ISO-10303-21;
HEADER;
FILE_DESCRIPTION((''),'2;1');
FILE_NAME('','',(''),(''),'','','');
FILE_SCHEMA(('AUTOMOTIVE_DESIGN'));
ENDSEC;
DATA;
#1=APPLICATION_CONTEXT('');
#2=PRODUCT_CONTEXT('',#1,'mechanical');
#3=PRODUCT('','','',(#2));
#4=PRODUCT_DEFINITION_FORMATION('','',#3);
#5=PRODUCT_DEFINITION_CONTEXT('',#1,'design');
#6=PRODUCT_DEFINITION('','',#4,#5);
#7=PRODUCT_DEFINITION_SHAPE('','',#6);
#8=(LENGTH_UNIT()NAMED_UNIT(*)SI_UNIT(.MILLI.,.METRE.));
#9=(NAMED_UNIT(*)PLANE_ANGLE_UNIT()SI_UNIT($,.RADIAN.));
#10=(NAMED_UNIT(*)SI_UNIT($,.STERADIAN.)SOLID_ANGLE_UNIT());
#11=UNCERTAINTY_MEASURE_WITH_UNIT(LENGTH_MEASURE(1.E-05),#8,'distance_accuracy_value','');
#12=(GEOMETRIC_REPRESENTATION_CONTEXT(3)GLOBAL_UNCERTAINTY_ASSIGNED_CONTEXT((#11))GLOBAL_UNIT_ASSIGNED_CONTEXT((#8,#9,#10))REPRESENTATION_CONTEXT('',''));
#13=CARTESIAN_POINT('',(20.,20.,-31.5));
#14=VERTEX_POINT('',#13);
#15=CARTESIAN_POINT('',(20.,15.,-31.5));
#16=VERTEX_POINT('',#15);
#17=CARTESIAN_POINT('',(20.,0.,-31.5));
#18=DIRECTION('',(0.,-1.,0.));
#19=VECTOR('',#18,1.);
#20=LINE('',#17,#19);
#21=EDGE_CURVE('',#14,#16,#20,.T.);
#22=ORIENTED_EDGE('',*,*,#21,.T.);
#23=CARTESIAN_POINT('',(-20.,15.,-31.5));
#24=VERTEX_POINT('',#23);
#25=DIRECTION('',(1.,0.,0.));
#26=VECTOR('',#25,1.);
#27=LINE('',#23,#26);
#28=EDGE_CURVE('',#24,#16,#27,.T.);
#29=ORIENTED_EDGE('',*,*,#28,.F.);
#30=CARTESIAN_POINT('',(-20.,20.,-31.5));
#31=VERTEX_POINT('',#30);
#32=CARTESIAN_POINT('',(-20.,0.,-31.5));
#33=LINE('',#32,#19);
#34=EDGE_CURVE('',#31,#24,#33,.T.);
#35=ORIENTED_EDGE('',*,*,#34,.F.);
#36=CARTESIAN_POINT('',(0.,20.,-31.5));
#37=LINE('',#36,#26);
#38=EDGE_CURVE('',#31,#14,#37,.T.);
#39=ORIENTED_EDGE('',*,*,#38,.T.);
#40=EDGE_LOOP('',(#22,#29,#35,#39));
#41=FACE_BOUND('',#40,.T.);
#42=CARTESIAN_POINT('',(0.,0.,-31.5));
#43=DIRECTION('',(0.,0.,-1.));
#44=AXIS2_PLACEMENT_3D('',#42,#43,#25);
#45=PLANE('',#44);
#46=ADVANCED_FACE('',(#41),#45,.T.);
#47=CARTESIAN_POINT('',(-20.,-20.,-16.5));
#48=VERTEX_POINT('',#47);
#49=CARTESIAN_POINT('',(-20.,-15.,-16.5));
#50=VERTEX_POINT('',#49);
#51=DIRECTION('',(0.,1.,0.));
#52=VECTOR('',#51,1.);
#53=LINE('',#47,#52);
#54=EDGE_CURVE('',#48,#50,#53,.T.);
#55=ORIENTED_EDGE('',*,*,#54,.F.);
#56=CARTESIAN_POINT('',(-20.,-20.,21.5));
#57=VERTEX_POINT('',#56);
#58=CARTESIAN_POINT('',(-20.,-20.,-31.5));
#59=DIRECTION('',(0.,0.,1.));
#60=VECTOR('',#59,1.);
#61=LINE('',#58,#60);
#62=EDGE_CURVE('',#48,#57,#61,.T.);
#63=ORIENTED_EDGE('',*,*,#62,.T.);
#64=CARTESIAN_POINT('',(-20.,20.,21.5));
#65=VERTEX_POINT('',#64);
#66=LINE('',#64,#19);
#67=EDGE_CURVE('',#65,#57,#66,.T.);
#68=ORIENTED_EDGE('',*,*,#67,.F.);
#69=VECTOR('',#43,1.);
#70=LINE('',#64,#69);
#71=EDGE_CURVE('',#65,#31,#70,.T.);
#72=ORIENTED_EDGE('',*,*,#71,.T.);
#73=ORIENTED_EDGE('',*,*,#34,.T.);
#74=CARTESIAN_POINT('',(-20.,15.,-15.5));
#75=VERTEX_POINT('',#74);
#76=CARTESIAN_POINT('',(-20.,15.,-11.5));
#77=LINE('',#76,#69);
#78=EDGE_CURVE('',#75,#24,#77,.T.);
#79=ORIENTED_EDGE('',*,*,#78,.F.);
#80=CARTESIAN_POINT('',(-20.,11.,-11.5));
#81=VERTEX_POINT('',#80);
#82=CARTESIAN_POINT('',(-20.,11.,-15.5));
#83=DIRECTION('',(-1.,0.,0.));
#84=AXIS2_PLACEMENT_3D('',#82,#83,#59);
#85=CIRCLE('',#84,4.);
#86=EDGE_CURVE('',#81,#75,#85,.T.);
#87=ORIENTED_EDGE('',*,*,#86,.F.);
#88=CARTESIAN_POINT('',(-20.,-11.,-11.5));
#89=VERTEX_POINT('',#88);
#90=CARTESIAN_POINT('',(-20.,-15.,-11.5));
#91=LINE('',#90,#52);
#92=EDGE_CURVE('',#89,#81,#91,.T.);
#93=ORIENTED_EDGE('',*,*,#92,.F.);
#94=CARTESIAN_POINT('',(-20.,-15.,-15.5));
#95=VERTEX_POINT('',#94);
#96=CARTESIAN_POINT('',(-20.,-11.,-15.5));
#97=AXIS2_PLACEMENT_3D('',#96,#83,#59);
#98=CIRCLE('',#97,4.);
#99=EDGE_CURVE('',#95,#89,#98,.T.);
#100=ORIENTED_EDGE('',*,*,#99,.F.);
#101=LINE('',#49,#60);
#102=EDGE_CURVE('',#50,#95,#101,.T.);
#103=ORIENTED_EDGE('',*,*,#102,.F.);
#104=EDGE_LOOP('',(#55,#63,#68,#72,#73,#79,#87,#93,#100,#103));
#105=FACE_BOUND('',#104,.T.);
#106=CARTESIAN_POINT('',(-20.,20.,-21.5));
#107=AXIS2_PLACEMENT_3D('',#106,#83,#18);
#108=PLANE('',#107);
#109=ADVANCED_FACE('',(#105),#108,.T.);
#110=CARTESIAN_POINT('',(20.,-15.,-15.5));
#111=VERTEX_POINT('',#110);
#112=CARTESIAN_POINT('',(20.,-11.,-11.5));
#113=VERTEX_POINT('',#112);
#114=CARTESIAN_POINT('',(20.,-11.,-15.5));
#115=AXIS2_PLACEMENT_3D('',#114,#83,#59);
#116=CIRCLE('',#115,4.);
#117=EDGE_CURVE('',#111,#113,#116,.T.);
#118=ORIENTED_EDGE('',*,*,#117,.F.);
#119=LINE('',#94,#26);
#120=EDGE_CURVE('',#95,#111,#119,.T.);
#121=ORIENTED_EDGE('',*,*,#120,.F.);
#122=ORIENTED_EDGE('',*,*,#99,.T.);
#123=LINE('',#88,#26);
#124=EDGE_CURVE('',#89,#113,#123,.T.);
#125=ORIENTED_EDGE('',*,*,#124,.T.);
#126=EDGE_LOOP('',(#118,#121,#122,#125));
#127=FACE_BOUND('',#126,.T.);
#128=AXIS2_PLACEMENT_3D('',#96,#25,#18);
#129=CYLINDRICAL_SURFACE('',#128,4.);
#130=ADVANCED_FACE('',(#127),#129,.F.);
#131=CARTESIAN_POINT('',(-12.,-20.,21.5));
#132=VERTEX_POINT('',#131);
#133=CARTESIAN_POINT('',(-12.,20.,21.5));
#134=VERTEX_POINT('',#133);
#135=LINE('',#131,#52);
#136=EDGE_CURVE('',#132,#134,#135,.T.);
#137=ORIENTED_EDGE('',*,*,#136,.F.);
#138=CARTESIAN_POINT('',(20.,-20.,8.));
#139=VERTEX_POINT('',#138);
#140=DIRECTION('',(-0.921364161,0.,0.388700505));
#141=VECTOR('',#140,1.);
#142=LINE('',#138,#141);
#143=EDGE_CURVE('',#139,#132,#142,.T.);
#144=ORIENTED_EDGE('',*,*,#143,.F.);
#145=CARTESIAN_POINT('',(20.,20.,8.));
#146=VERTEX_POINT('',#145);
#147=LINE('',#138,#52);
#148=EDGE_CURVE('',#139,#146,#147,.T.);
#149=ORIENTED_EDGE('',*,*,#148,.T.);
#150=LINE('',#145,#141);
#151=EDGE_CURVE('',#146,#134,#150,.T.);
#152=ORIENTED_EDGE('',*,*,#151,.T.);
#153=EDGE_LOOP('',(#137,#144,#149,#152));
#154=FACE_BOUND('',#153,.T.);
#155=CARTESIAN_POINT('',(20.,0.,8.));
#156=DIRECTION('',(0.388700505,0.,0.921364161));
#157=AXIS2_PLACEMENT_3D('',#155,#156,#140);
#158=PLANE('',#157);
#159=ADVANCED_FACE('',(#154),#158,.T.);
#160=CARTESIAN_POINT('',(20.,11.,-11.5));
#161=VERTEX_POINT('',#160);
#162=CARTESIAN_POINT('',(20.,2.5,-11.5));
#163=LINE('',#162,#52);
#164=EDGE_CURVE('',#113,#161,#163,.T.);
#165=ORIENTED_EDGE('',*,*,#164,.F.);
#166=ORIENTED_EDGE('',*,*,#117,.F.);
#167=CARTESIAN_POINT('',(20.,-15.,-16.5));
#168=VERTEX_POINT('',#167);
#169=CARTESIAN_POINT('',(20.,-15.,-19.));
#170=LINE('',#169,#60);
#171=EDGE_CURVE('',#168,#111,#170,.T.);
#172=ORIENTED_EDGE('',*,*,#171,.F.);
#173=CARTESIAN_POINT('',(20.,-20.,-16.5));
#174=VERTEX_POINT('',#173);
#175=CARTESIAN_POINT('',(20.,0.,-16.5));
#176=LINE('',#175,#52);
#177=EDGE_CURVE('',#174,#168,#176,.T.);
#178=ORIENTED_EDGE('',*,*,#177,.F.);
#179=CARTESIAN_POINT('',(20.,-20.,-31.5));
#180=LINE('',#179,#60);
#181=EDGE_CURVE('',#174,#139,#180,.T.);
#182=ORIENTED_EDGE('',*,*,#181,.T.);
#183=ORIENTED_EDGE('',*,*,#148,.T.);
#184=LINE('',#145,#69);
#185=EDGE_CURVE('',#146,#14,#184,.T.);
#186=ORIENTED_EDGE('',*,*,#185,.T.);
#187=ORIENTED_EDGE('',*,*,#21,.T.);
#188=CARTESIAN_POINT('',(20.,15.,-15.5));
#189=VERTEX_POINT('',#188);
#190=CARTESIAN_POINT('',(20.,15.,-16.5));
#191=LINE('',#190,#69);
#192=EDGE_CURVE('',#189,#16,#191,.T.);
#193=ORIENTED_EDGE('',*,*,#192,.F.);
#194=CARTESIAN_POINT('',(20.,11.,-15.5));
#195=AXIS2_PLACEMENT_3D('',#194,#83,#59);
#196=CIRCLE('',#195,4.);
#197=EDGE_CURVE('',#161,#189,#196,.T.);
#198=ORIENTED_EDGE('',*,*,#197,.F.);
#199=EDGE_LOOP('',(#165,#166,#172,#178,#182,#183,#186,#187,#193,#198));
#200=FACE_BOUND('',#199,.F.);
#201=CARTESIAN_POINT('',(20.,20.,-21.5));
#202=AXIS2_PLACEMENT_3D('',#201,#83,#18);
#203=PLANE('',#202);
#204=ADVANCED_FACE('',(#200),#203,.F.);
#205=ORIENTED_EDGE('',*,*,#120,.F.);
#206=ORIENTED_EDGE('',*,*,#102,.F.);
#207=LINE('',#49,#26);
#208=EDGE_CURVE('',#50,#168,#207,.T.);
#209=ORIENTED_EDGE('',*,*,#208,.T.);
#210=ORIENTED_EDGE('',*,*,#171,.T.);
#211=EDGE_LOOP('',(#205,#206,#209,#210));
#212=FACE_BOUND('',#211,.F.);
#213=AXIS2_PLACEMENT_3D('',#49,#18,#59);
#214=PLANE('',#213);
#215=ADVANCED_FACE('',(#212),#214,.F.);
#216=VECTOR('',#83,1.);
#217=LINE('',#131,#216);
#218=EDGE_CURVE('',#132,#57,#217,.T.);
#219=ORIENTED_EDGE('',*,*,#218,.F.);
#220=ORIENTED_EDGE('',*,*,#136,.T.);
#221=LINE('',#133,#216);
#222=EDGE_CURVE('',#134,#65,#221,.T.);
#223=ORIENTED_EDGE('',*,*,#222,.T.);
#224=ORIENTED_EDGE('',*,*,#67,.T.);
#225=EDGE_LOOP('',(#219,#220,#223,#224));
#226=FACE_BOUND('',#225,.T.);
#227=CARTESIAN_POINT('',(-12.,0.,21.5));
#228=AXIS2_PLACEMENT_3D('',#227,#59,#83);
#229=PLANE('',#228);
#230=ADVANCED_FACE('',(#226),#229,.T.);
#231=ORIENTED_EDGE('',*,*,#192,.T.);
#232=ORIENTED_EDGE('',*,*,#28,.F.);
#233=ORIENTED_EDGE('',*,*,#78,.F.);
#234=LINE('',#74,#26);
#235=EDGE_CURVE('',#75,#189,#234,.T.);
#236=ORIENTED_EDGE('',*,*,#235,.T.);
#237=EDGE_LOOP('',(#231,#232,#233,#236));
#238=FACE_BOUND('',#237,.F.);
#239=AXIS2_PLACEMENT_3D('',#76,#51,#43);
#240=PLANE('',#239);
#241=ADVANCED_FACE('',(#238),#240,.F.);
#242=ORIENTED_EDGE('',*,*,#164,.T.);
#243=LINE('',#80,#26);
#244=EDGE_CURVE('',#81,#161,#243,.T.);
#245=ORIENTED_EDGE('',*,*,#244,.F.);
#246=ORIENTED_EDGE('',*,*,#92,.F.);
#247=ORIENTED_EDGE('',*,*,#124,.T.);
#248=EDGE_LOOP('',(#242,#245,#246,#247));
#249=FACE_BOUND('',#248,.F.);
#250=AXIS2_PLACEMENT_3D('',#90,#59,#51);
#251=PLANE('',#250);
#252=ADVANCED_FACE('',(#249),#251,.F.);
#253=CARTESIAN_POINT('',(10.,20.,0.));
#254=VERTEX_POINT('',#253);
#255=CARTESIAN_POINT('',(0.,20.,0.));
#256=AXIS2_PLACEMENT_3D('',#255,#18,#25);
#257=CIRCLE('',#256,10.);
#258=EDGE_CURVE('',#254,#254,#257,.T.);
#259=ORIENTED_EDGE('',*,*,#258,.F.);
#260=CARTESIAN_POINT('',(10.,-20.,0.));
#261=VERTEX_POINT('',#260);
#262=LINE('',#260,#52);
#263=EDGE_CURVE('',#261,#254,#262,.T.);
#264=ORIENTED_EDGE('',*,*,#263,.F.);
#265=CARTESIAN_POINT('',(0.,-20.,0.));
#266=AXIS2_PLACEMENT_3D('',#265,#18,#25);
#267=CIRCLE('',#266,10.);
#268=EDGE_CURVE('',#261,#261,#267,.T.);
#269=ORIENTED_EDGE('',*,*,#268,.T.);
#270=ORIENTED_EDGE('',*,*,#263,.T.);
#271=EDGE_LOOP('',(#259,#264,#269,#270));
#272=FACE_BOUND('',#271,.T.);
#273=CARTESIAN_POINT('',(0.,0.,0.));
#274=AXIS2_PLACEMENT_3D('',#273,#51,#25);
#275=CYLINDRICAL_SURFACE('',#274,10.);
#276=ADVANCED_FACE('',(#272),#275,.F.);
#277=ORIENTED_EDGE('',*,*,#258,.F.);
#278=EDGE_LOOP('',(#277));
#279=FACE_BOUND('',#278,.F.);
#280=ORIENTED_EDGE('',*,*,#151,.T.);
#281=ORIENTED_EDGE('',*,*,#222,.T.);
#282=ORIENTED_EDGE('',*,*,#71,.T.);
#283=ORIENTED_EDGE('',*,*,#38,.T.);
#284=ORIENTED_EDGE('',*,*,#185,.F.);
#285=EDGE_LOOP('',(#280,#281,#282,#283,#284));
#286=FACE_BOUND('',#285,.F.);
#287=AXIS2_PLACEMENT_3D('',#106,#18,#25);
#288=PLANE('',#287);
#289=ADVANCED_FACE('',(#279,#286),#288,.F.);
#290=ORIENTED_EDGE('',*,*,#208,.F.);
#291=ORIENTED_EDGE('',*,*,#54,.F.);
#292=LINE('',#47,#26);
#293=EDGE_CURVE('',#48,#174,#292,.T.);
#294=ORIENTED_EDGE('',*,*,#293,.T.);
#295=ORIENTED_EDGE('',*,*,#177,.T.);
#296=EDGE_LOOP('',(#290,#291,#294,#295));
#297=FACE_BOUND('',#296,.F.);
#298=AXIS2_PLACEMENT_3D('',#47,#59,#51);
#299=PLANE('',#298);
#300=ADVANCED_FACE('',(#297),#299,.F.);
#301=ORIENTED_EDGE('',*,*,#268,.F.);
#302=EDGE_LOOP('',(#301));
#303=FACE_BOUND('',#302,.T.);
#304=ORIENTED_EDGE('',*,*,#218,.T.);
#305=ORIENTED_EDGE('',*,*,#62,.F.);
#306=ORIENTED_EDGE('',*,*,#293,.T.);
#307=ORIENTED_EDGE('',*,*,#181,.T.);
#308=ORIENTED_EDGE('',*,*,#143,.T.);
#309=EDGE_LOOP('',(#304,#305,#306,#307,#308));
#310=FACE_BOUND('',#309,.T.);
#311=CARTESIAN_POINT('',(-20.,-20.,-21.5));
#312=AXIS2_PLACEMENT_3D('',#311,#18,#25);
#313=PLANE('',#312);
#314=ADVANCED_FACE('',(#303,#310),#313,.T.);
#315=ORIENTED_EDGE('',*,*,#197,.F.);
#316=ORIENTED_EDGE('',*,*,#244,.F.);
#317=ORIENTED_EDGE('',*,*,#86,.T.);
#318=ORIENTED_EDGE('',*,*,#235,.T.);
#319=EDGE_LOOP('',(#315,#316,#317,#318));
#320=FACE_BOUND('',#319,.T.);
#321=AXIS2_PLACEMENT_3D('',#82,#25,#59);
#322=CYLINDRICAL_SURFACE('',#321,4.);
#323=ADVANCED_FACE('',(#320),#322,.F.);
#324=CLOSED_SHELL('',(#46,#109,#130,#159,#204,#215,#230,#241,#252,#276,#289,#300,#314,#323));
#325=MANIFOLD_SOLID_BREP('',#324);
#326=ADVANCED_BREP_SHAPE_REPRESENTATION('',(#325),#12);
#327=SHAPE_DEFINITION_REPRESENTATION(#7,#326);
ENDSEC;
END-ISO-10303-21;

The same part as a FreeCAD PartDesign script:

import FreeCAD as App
import Part
import Sketcher

V = App.Vector
Q = App.Units.Quantity


def edges_at(feature, points):
    """Names of the edges that pass closest to the given points."""
    edges = feature.Shape.Edges
    near = lambda p: min(range(len(edges)), key=lambda i: edges[i].distToShape(Part.Vertex(*p))[0])
    return sorted({f"Edge{near(p) + 1}" for p in points})

doc = App.newDocument("Part")
body = doc.addObject("PartDesign::Body", "Body")

# Sketch on XZ plane
sketch1 = body.newObject("Sketcher::SketchObject", "Sketch")
sketch1.AttachmentSupport = (doc.getObject("XZ_Plane"), [""])
sketch1.MapMode = "FlatFace"
sketch1.addGeometry(Part.LineSegment(V(-12, 21.5, 0), V(-20, 21.5, 0)), False)
sketch1.addGeometry(Part.LineSegment(V(-20, 21.5, 0), V(-20, -21.5, 0)), False)
sketch1.addGeometry(Part.LineSegment(V(-20, -21.5, 0), V(20, -21.5, 0)), False)
sketch1.addGeometry(Part.LineSegment(V(20, -21.5, 0), V(20, 8, 0)), False)
sketch1.addGeometry(Part.LineSegment(V(20, 8, 0), V(-12, 21.5, 0)), False)
sketch1.addGeometry(Part.Circle(V(0, 0, 0), V(0, 0, 1), 10), False)
sketch1.addConstraint(Sketcher.Constraint("Coincident", 0, 2, 1, 1))
sketch1.addConstraint(Sketcher.Constraint("Coincident", 1, 2, 2, 1))
sketch1.addConstraint(Sketcher.Constraint("Coincident", 2, 2, 3, 1))
sketch1.addConstraint(Sketcher.Constraint("Coincident", 3, 2, 4, 1))
sketch1.addConstraint(Sketcher.Constraint("Coincident", 4, 2, 0, 1))
sketch1.addConstraint(Sketcher.Constraint("Horizontal", 0))
sketch1.addConstraint(Sketcher.Constraint("Vertical", 1))
sketch1.addConstraint(Sketcher.Constraint("Horizontal", 2))
sketch1.addConstraint(Sketcher.Constraint("Vertical", 3))
sketch1.addConstraint(Sketcher.Constraint("Coincident", 5, 3, -1, 1))
sketch1.addConstraint(Sketcher.Constraint("Symmetric", 0, 2, 2, 2, -1, 1))
sketch1.addConstraint(Sketcher.Constraint("Diameter", 5, Q("20 mm")))
sketch1.addConstraint(Sketcher.Constraint("DistanceX", 0, 2, 0, 1, Q("8 mm")))
sketch1.addConstraint(Sketcher.Constraint("DistanceX", 2, 1, 2, 2, Q("40 mm")))
sketch1.addConstraint(Sketcher.Constraint("DistanceY", 1, 2, 1, 1, Q("43 mm")))
sketch1.addConstraint(Sketcher.Constraint("DistanceY", 3, 1, 3, 2, Q("29.5 mm")))
pad1 = body.newObject("PartDesign::Pad", "Pad")
pad1.Profile = sketch1
pad1.Length = 40
pad1.Midplane = True

# Sketch on XY plane
sketch2 = body.newObject("Sketcher::SketchObject", "Sketch001")
sketch2.AttachmentSupport = (doc.getObject("XY_Plane"), [""])
sketch2.MapMode = "FlatFace"
sketch2.AttachmentOffset = App.Placement(V(0, 0, -21.5), App.Rotation())
sketch2.addGeometry(Part.LineSegment(V(-20, -20, 0), V(-20, 20, 0)), False)
sketch2.addGeometry(Part.LineSegment(V(-20, 20, 0), V(20, 20, 0)), False)
sketch2.addGeometry(Part.LineSegment(V(20, 20, 0), V(20, -20, 0)), False)
sketch2.addGeometry(Part.LineSegment(V(20, -20, 0), V(-20, -20, 0)), False)
sketch2.addConstraint(Sketcher.Constraint("Coincident", 0, 2, 1, 1))
sketch2.addConstraint(Sketcher.Constraint("Coincident", 1, 2, 2, 1))
sketch2.addConstraint(Sketcher.Constraint("Coincident", 2, 2, 3, 1))
sketch2.addConstraint(Sketcher.Constraint("Coincident", 3, 2, 0, 1))
sketch2.addConstraint(Sketcher.Constraint("Vertical", 0))
sketch2.addConstraint(Sketcher.Constraint("Horizontal", 1))
sketch2.addConstraint(Sketcher.Constraint("Vertical", 2))
sketch2.addConstraint(Sketcher.Constraint("Horizontal", 3))
sketch2.addConstraint(Sketcher.Constraint("Symmetric", 0, 2, 2, 2, -1, 1))
sketch2.addConstraint(Sketcher.Constraint("Equal", 3, 0))
sketch2.addConstraint(Sketcher.Constraint("DistanceX", 1, 1, 1, 2, Q("40 mm")))
pad2 = body.newObject("PartDesign::Pad", "Pad001")
pad2.Profile = sketch2
pad2.Length = 10
pad2.Reversed = True

# Sketch on YZ plane
sketch3 = body.newObject("Sketcher::SketchObject", "Sketch002")
sketch3.AttachmentSupport = (doc.getObject("YZ_Plane"), [""])
sketch3.MapMode = "FlatFace"
sketch3.AttachmentOffset = App.Placement(V(0, 0, -20), App.Rotation())
sketch3.addGeometry(Part.LineSegment(V(15, -11.5, 0), V(15, -31.5, 0)), False)
sketch3.addGeometry(Part.LineSegment(V(15, -31.5, 0), V(-20, -31.5, 0)), False)
sketch3.addGeometry(Part.LineSegment(V(-20, -31.5, 0), V(-20, -16.5, 0)), False)
sketch3.addGeometry(Part.LineSegment(V(-20, -16.5, 0), V(-15, -16.5, 0)), False)
sketch3.addGeometry(Part.LineSegment(V(-15, -16.5, 0), V(-15, -11.5, 0)), False)
sketch3.addGeometry(Part.LineSegment(V(-15, -11.5, 0), V(15, -11.5, 0)), False)
sketch3.addConstraint(Sketcher.Constraint("Coincident", 0, 2, 1, 1))
sketch3.addConstraint(Sketcher.Constraint("Coincident", 1, 2, 2, 1))
sketch3.addConstraint(Sketcher.Constraint("Coincident", 2, 2, 3, 1))
sketch3.addConstraint(Sketcher.Constraint("Coincident", 3, 2, 4, 1))
sketch3.addConstraint(Sketcher.Constraint("Coincident", 4, 2, 5, 1))
sketch3.addConstraint(Sketcher.Constraint("Coincident", 5, 2, 0, 1))
sketch3.addConstraint(Sketcher.Constraint("Vertical", 0))
sketch3.addConstraint(Sketcher.Constraint("Horizontal", 1))
sketch3.addConstraint(Sketcher.Constraint("Vertical", 2))
sketch3.addConstraint(Sketcher.Constraint("Horizontal", 3))
sketch3.addConstraint(Sketcher.Constraint("Vertical", 4))
sketch3.addConstraint(Sketcher.Constraint("Horizontal", 5))
sketch3.addConstraint(Sketcher.Constraint("Equal", 3, 4))
sketch3.addConstraint(Sketcher.Constraint("DistanceX", 1, 2, 1, 1, Q("35 mm")))
sketch3.addConstraint(Sketcher.Constraint("DistanceX", 3, 1, 3, 2, Q("5 mm")))
sketch3.addConstraint(Sketcher.Constraint("DistanceY", 0, 2, 0, 1, Q("20 mm")))
sketch3.addConstraint(Sketcher.Constraint("DistanceX", -1, 1, 0, 2, Q("15 mm")))
sketch3.addConstraint(Sketcher.Constraint("DistanceY", 0, 2, -1, 1, Q("31.5 mm")))
pocket1 = body.newObject("PartDesign::Pocket", "Pocket")
pocket1.Profile = sketch3
pocket1.Type = "ThroughAll"
pocket1.Reversed = True
doc.recompute()

fillet = body.newObject("PartDesign::Fillet", "Fillet")
fillet.Base = (pocket1, edges_at(pocket1, [(0, 15, -11.5), (0, -15, -11.5)]))
fillet.Radius = 4

doc.recompute()
